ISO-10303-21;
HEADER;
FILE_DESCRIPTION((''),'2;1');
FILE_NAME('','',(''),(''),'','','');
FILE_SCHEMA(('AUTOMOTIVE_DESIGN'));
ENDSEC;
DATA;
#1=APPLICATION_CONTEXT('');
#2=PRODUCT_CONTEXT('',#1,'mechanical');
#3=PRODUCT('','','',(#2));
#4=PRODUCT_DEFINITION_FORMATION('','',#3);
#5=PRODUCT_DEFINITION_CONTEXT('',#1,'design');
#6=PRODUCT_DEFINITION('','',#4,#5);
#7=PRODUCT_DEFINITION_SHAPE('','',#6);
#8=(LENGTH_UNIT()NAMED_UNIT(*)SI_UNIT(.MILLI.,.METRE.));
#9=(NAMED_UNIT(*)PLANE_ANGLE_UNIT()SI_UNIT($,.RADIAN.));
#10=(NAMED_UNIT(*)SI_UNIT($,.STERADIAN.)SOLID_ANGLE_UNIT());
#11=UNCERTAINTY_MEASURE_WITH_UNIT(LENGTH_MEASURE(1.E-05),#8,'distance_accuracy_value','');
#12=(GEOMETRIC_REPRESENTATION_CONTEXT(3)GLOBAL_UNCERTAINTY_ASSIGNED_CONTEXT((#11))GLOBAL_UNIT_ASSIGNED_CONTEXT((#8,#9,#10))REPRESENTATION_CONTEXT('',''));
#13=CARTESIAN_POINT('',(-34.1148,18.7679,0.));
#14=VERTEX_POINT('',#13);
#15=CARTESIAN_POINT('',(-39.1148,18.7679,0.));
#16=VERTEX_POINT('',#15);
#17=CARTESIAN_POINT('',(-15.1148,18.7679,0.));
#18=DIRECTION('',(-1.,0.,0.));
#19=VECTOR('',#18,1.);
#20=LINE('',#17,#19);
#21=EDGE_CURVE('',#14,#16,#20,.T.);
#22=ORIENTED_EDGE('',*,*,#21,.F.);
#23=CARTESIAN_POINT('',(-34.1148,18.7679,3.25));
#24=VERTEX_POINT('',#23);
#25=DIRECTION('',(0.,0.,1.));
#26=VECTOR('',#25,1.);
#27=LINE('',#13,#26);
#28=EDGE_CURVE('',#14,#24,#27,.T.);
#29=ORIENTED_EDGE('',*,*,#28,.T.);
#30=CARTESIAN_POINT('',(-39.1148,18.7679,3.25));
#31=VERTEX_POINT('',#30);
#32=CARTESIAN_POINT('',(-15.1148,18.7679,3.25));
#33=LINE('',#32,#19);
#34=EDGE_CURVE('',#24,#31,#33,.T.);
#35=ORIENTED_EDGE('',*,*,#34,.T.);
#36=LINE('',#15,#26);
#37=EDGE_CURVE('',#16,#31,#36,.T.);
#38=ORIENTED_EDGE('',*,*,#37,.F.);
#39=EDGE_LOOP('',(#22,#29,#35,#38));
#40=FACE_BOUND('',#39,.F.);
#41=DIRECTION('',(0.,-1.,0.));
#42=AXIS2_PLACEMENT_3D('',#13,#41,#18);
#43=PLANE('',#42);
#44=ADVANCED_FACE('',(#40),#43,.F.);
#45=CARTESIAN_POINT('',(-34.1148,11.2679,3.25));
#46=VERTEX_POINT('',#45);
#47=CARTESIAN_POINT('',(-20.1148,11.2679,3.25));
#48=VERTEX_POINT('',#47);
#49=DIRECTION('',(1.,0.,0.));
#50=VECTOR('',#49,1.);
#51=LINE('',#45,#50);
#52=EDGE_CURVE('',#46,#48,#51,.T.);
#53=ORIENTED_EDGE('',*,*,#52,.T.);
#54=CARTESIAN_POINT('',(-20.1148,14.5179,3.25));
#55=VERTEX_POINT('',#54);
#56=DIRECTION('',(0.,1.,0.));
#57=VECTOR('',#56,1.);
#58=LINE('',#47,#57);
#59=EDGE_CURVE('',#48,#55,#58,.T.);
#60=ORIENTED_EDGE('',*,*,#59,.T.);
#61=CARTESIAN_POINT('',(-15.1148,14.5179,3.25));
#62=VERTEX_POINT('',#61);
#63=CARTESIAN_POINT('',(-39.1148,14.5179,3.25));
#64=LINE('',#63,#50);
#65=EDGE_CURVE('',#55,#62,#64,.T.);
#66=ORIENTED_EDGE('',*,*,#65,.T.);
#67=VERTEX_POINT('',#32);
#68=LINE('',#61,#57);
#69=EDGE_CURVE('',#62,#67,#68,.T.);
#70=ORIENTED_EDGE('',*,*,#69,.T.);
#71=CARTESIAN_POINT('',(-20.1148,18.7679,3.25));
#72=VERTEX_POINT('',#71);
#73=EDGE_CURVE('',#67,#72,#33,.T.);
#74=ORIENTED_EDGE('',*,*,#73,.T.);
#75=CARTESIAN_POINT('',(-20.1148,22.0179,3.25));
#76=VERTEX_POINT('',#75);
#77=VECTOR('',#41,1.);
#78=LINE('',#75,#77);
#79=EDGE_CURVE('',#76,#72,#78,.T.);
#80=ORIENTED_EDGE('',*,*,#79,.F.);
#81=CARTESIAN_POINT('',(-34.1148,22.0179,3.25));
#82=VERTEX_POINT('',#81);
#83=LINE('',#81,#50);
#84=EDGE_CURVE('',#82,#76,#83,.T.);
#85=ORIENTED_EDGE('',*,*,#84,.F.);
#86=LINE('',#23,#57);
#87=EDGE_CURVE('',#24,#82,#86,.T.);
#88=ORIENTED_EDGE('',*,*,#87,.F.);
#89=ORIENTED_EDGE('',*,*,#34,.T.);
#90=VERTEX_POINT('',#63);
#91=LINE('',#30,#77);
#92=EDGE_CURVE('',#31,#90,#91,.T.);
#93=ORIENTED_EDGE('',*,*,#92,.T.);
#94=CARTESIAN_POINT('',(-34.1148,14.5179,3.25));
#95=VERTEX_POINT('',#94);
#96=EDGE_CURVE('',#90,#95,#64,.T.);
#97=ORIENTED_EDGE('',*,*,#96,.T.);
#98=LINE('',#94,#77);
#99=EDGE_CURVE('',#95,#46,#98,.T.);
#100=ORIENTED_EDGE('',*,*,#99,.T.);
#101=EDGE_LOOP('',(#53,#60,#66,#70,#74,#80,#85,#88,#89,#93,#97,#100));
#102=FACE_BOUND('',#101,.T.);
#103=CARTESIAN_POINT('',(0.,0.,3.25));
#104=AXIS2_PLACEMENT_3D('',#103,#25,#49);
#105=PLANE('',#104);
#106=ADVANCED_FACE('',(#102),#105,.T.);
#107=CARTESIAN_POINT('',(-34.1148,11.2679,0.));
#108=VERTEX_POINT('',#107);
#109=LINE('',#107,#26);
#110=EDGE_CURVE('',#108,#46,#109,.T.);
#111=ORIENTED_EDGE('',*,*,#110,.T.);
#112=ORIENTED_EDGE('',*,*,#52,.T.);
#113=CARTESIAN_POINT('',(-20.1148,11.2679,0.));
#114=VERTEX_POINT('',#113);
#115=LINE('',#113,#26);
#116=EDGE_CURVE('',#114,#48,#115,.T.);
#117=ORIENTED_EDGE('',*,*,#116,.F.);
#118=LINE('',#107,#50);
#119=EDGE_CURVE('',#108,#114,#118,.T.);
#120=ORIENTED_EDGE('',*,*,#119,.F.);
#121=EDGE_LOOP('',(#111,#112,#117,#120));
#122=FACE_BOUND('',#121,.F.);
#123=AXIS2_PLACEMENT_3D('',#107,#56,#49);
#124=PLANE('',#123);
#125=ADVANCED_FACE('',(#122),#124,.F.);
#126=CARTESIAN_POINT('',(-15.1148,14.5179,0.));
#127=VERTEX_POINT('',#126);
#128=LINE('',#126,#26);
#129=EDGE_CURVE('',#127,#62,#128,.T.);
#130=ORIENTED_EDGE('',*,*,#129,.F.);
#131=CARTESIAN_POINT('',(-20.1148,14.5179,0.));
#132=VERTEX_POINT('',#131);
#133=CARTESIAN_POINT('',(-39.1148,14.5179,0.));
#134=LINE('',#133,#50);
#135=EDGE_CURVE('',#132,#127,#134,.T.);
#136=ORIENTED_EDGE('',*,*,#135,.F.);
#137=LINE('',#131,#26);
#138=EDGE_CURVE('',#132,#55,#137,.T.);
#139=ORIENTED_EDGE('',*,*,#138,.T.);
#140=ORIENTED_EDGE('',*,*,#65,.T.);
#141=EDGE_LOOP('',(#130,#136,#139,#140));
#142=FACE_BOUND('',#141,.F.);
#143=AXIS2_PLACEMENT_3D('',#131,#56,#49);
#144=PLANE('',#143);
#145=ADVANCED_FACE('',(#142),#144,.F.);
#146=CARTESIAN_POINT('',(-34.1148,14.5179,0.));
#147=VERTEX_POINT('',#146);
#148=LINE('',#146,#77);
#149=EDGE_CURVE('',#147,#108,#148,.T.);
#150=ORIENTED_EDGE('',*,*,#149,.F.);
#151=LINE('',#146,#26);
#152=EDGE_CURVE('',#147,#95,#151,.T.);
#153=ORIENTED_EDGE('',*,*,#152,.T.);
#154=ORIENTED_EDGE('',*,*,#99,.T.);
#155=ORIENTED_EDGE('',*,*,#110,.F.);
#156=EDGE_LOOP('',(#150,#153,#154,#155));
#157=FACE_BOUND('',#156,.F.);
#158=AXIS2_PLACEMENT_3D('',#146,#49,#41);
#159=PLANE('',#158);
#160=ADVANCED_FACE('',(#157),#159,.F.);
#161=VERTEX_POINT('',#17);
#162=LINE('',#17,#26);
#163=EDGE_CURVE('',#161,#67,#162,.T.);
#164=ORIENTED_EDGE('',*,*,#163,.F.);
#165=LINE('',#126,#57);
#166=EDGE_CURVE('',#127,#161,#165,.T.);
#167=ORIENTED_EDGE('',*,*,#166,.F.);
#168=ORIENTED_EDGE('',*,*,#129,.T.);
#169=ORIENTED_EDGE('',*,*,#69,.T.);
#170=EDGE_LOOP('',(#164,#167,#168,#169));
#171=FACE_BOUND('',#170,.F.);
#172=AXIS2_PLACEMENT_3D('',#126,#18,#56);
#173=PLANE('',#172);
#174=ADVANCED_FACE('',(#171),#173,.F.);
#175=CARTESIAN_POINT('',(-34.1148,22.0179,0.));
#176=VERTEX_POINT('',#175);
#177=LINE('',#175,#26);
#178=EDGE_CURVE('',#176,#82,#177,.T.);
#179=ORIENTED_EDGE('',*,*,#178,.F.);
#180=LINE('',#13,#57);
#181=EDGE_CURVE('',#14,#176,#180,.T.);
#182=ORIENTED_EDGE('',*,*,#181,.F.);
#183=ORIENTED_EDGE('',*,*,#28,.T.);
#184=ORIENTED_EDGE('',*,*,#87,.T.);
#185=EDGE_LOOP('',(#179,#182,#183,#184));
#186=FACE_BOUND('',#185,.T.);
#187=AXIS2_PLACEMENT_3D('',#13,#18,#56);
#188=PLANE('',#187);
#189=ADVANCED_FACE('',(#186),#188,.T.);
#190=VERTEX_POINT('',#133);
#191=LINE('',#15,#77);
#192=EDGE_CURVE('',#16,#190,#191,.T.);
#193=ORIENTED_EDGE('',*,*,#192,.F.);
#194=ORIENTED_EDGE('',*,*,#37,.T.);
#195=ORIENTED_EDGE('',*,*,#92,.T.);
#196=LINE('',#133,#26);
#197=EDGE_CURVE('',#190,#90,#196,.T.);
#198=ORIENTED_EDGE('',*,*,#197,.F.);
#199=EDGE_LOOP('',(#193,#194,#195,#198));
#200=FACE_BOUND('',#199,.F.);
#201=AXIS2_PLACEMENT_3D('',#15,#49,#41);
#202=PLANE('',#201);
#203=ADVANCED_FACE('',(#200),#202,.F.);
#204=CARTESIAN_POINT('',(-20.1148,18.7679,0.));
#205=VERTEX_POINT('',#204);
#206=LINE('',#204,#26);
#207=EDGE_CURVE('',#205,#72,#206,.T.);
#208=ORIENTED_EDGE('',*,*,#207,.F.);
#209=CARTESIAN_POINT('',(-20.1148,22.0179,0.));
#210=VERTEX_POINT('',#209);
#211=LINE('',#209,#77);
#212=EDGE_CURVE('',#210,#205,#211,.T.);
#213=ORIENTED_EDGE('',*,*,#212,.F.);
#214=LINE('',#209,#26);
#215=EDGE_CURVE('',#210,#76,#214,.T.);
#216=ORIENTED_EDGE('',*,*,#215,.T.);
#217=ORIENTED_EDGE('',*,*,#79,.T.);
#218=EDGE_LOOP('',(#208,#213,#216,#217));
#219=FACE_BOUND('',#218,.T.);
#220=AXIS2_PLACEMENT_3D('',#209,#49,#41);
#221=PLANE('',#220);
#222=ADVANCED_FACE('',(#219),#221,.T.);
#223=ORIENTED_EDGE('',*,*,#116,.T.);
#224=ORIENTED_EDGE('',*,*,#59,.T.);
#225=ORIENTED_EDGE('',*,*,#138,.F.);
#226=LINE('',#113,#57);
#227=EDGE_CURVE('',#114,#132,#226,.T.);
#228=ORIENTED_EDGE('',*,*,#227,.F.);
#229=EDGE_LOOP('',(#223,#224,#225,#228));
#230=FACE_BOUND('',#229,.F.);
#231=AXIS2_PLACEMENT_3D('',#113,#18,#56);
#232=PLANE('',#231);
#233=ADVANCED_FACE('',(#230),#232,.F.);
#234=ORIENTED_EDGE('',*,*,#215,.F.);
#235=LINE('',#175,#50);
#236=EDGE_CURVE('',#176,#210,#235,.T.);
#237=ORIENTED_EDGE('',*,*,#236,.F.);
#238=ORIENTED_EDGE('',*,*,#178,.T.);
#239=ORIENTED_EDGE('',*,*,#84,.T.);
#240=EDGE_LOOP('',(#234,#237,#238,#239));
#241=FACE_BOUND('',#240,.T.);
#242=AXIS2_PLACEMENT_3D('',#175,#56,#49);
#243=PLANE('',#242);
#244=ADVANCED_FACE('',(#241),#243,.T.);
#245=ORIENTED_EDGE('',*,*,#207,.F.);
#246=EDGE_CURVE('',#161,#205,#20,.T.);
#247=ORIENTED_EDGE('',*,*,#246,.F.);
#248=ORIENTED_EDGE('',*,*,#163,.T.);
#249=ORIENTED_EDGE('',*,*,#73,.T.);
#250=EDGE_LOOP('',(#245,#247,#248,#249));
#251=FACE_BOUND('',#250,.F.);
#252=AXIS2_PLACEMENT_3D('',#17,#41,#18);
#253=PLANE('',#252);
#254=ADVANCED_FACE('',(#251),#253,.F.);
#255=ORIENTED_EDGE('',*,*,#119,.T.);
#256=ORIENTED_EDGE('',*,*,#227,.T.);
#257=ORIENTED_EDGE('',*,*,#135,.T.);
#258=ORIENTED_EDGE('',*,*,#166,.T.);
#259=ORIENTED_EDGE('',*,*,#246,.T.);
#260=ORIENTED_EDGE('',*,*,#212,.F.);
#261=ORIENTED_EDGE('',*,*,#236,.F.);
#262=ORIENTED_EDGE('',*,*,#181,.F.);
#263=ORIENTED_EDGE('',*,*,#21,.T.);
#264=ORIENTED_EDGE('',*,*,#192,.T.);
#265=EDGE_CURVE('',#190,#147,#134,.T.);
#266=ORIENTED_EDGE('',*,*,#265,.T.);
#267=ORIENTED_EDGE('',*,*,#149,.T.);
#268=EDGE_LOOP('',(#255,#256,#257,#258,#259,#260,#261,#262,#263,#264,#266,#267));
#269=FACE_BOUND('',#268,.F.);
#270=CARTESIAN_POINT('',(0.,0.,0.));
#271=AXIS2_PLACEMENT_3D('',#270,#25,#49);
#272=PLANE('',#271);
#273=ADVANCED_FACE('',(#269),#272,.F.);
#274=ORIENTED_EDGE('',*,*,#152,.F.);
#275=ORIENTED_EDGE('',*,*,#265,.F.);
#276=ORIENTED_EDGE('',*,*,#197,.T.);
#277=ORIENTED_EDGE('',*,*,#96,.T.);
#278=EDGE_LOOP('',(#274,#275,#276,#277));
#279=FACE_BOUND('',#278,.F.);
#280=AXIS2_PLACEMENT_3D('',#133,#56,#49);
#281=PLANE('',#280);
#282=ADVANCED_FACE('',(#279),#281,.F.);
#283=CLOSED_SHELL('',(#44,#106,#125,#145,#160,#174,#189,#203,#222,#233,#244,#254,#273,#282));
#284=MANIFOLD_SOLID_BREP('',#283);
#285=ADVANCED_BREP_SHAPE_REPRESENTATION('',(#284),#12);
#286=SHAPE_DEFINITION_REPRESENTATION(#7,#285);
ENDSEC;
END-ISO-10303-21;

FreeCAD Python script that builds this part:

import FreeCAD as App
import Part
import Sketcher

V = App.Vector
Q = App.Units.Quantity


def add_polygon(sketch, points):
    """Adds a closed chain of lines whose ends are joined by coincident constraints."""
    first, n = sketch.GeometryCount, len(points)
    for a, b in zip(points, points[1:] + points[:1]):
        sketch.addGeometry(Part.LineSegment(App.Vector(*a, 0), App.Vector(*b, 0)), False)
    for i in range(n):
        sketch.addConstraint(Sketcher.Constraint("Coincident", first + i, 2, first + (i + 1) % n, 1))

doc = App.newDocument("Part")
body = doc.addObject("PartDesign::Body", "Body")

# Sketch on XY plane
sketch1 = doc.addObject("Sketcher::SketchObject", "Sketch")
body.addObject(sketch1)
sketch1.AttachmentSupport = (doc.XY_Plane, [""])
sketch1.MapMode = "FlatFace"
add_polygon(sketch1, [(-39.1148, 18.7679), (-39.1148, 14.5179), (-34.1148, 14.5179), (-34.1148, 11.2679), (-20.1148, 11.2679), (-20.1148, 14.5179), (-15.1148, 14.5179), (-15.1148, 18.7679), (-20.1148, 18.7679), (-20.1148, 22.0179), (-34.1148, 22.0179), (-34.1148, 18.7679)])  # lines 0-11
sketch1.addConstraint([
    Sketcher.Constraint("Vertical", 0),
    Sketcher.Constraint("Horizontal", 1),
    Sketcher.Constraint("Vertical", 2),
    Sketcher.Constraint("Horizontal", 3),
    Sketcher.Constraint("Vertical", 4),
    Sketcher.Constraint("Horizontal", 5),
    Sketcher.Constraint("Vertical", 6),
    Sketcher.Constraint("Horizontal", 7),
    Sketcher.Constraint("Vertical", 8),
    Sketcher.Constraint("Horizontal", 9),
    Sketcher.Constraint("Vertical", 10),
    Sketcher.Constraint("Horizontal", 11),
    Sketcher.Constraint("Horizontal", 1, 2, 4, 2),
    Sketcher.Constraint("Horizontal", 7, 2, 10, 2),
    Sketcher.Constraint("Vertical", 4, 2, 7, 2),
    Sketcher.Constraint("Vertical", 2, 2, 9, 2),
    Sketcher.Constraint("Equal", 1, 5),
    Sketcher.Constraint("Equal", 4, 8),
    Sketcher.Constraint("DistanceX", 3, 1, 3, 2, Q("14 mm")),
    Sketcher.Constraint("DistanceX", 0, 2, 5, 2, Q("24 mm")),
    Sketcher.Constraint("DistanceY", 0, 2, 0, 1, Q("4.25 mm")),
    Sketcher.Constraint("DistanceY", 2, 2, 2, 1, Q("3.25 mm")),
    Sketcher.Constraint("DistanceY", -1, 1, 0, 2, Q("14.518 mm")),
    Sketcher.Constraint("DistanceX", 0, 2, -1, 1, Q("39.1148 mm")),
])
pad1 = doc.addObject("PartDesign::Pad", "Pad")
body.addObject(pad1)
pad1.Profile = sketch1
pad1.Length = 3.25

doc.recompute()
